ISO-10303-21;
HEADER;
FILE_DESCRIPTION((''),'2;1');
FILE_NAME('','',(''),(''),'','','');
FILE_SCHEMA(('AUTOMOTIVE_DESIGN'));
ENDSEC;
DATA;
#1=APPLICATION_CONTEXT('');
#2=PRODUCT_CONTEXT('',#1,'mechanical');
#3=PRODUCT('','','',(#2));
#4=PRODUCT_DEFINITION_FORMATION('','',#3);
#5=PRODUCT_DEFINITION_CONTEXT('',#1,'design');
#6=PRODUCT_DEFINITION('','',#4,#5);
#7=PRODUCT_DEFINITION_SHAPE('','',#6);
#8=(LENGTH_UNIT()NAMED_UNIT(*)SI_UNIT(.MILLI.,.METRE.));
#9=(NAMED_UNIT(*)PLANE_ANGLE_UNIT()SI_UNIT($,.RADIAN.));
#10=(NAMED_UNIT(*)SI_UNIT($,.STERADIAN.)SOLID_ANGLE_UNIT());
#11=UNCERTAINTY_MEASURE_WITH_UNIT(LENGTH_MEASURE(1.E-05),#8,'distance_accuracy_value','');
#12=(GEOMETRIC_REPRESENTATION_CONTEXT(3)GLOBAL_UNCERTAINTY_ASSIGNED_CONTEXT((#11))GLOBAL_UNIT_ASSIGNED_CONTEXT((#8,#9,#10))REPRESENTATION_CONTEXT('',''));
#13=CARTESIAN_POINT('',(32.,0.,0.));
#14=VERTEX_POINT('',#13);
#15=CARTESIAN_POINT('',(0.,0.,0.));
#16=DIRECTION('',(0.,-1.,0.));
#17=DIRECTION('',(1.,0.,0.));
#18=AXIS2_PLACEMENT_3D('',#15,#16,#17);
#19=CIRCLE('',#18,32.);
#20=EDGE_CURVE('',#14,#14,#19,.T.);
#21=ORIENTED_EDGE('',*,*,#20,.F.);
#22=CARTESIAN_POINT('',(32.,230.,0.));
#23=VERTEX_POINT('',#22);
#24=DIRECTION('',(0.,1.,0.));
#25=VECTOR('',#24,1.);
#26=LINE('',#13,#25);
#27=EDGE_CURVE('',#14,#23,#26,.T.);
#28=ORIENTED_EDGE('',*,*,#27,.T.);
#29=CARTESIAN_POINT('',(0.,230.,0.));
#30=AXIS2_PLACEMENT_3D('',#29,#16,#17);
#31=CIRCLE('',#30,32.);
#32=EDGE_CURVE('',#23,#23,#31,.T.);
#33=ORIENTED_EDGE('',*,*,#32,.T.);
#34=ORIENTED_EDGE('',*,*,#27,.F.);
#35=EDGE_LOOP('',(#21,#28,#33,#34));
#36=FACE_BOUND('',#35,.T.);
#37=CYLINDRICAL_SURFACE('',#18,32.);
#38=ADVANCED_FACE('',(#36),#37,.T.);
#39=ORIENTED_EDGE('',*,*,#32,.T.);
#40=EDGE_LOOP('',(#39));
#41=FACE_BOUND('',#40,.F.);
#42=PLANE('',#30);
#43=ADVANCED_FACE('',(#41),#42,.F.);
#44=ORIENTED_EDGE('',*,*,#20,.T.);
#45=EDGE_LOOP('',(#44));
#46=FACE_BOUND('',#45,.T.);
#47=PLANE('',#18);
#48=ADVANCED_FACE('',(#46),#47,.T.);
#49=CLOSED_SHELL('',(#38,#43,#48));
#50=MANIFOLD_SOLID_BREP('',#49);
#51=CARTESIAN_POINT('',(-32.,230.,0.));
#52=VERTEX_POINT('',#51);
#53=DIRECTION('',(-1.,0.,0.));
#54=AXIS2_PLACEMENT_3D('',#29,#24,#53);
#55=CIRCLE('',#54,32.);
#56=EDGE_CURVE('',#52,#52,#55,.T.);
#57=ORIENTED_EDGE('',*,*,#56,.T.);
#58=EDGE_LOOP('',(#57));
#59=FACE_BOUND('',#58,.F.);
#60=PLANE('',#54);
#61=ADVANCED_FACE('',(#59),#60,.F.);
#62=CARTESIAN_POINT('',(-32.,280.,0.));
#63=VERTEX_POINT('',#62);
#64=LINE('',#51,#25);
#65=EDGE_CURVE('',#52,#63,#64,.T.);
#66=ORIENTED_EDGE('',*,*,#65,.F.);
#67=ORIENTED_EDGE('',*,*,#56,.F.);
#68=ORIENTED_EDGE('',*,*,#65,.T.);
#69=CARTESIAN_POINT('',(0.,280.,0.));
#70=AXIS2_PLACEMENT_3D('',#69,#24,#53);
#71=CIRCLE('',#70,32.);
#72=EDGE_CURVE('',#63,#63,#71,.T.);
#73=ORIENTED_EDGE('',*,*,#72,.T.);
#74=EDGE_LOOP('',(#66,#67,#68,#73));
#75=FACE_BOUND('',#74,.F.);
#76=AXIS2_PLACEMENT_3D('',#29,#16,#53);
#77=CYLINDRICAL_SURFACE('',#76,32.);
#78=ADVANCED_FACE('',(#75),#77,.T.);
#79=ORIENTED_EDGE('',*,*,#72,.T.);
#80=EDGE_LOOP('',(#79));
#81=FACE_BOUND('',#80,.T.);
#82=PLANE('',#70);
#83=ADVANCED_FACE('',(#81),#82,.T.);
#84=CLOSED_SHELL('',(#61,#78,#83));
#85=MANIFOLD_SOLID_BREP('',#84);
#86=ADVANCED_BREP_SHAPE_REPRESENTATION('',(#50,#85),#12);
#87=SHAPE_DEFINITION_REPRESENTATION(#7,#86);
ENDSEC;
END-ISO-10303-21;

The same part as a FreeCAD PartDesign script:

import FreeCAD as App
import Part
import Sketcher
from FreeCAD import Vector
Q = App.Units.Quantity

doc = App.newDocument("Part")
body = doc.addObject("PartDesign::Body", "Body")

sketch1 = doc.addObject("Sketcher::SketchObject", "Sketch")
body.addObject(sketch1)
sketch1.AttachmentSupport = (doc.XZ_Plane, [""])
sketch1.MapMode = "FlatFace"
sketch1.addGeometry(Part.Circle(Vector(0, 0, 0), Vector(0, 0, 1), 32), False)
sketch1.addConstraint(Sketcher.Constraint("Coincident", 0, 3, -1, 1))
sketch1.addConstraint(Sketcher.Constraint("Diameter", 0, Q("64 mm")))
pad1 = doc.addObject("PartDesign::Pad", "Pad")
body.addObject(pad1)
pad1.Profile = sketch1
pad1.Length = 230
pad1.Reversed = True
body2 = doc.addObject("PartDesign::Body", "Body001")

sketch2 = doc.addObject("Sketcher::SketchObject", "Sketch001")
body2.addObject(sketch2)
sketch2.AttachmentSupport = (doc.getObject("XZ_Plane001"), [""])
sketch2.MapMode = "FlatFace"
sketch2.AttachmentOffset = App.Placement(Vector(0, 0, -230), App.Rotation())
sketch2.addGeometry(Part.Circle(Vector(0, 0, 0), Vector(0, 0, 1), 32), False)
sketch2.addConstraint(Sketcher.Constraint("Coincident", 0, 3, -1, 1))
sketch2.addConstraint(Sketcher.Constraint("Diameter", 0, Q("64 mm")))
pad2 = doc.addObject("PartDesign::Pad", "Pad001")
body2.addObject(pad2)
pad2.Profile = sketch2
pad2.Length = 50
pad2.Reversed = True

doc.recompute()
